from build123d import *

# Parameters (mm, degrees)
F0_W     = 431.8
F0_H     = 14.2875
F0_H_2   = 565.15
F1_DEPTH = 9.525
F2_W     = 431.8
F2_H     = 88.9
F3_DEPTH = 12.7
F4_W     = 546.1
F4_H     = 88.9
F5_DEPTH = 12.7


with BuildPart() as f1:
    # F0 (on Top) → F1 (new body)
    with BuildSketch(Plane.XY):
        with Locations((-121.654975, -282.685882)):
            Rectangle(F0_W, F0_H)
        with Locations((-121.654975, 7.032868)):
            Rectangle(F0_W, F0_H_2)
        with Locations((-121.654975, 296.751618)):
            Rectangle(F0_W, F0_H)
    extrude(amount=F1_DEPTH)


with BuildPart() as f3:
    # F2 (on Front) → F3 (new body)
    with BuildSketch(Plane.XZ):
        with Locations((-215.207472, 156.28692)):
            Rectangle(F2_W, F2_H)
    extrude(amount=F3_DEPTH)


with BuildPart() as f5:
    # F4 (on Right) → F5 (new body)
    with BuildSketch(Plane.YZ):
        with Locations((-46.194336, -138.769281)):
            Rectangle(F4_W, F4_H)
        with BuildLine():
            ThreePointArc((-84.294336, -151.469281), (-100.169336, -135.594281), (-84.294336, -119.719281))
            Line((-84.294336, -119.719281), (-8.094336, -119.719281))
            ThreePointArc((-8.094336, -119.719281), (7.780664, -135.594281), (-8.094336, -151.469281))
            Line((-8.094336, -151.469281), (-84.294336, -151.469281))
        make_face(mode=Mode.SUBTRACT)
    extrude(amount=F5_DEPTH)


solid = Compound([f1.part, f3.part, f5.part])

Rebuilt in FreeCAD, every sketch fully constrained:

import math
import FreeCAD as App
import Part
import Sketcher

V = App.Vector
Q = App.Units.Quantity

doc = App.newDocument("Part")
body = doc.addObject("PartDesign::Body", "Body")

sketch1 = doc.addObject("Sketcher::SketchObject", "Sketch")
body.addObject(sketch1)
sketch1.AttachmentSupport = (doc.XY_Plane, [""])
sketch1.MapMode = "FlatFace"
sketch1.addGeometry(Part.LineSegment(V(-338, -290, 0), V(94, -290, 0)), False)
sketch1.addGeometry(Part.LineSegment(V(94, -290, 0), V(94, 304, 0)), False)
sketch1.addGeometry(Part.LineSegment(V(94, 304, 0), V(-338, 304, 0)), False)
sketch1.addGeometry(Part.LineSegment(V(-338, 304, 0), V(-338, -290, 0)), False)
sketch1.addConstraint(Sketcher.Constraint("Coincident", 0, 2, 1, 1))
sketch1.addConstraint(Sketcher.Constraint("Coincident", 1, 2, 2, 1))
sketch1.addConstraint(Sketcher.Constraint("Coincident", 2, 2, 3, 1))
sketch1.addConstraint(Sketcher.Constraint("Coincident", 3, 2, 0, 1))
sketch1.addConstraint(Sketcher.Constraint("Horizontal", 0))
sketch1.addConstraint(Sketcher.Constraint("Vertical", 1))
sketch1.addConstraint(Sketcher.Constraint("Horizontal", 2))
sketch1.addConstraint(Sketcher.Constraint("Vertical", 3))
sketch1.addConstraint(Sketcher.Constraint("DistanceX", 0, 1, 0, 2, Q("17 in")))
sketch1.addConstraint(Sketcher.Constraint("DistanceY", 1, 1, 1, 2, Q("23.375 in")))
sketch1.addConstraint(Sketcher.Constraint("DistanceY", 0, 2, -1, 1, 289.829632))
sketch1.addConstraint(Sketcher.Constraint("DistanceX", -1, 1, 0, 2, 94.245025))
pad1 = doc.addObject("PartDesign::Pad", "Pad")
body.addObject(pad1)
pad1.Profile = sketch1
pad1.Length = Q("0.375 in")
body2 = doc.addObject("PartDesign::Body", "Body001")

sketch2 = doc.addObject("Sketcher::SketchObject", "Sketch001")
body2.addObject(sketch2)
sketch2.AttachmentSupport = (doc.getObject("XZ_Plane001"), [""])
sketch2.MapMode = "FlatFace"
sketch2.addGeometry(Part.LineSegment(V(-431, 201, 0), V(-431, 112, 0)), False)
sketch2.addGeometry(Part.LineSegment(V(-431, 112, 0), V(1, 112, 0)), False)
sketch2.addGeometry(Part.LineSegment(V(1, 112, 0), V(1, 201, 0)), False)
sketch2.addGeometry(Part.LineSegment(V(1, 201, 0), V(-431, 201, 0)), False)
sketch2.addConstraint(Sketcher.Constraint("Coincident", 0, 2, 1, 1))
sketch2.addConstraint(Sketcher.Constraint("Coincident", 1, 2, 2, 1))
sketch2.addConstraint(Sketcher.Constraint("Coincident", 2, 2, 3, 1))
sketch2.addConstraint(Sketcher.Constraint("Coincident", 3, 2, 0, 1))
sketch2.addConstraint(Sketcher.Constraint("Vertical", 0))
sketch2.addConstraint(Sketcher.Constraint("Horizontal", 1))
sketch2.addConstraint(Sketcher.Constraint("Vertical", 2))
sketch2.addConstraint(Sketcher.Constraint("Horizontal", 3))
sketch2.addConstraint(Sketcher.Constraint("DistanceX", 1, 1, 1, 2, Q("17 in")))
sketch2.addConstraint(Sketcher.Constraint("DistanceY", 0, 2, 0, 1, Q("3.5 in")))
sketch2.addConstraint(Sketcher.Constraint("DistanceX", 0, 2, -1, 1, 431.107472))
sketch2.addConstraint(Sketcher.Constraint("DistanceY", -1, 1, 0, 2, 111.83692))
pad2 = doc.addObject("PartDesign::Pad", "Pad001")
body2.addObject(pad2)
pad2.Profile = sketch2
pad2.Length = Q("0.5 in")
body3 = doc.addObject("PartDesign::Body", "Body002")

sketch3 = doc.addObject("Sketcher::SketchObject", "Sketch002")
body3.addObject(sketch3)
sketch3.AttachmentSupport = (doc.getObject("YZ_Plane002"), [""])
sketch3.MapMode = "FlatFace"
sketch3.addGeometry(Part.LineSegment(V(-319, -94, 0), V(-319, -183, 0)), False)
sketch3.addGeometry(Part.LineSegment(V(-319, -183, 0), V(227, -183, 0)), False)
sketch3.addGeometry(Part.LineSegment(V(227, -183, 0), V(227, -94, 0)), False)
sketch3.addGeometry(Part.LineSegment(V(227, -94, 0), V(-319, -94, 0)), False)
sketch3.addGeometry(Part.LineSegment(V(-8, -151, 0), V(-84, -151, 0)), False)
sketch3.addGeometry(Part.ArcOfCircle(Part.Circle(V(-84, -136, 0), V(0, 0, 1), 16), math.radians(90), math.radians(270)), False)
sketch3.addGeometry(Part.LineSegment(V(-84, -120, 0), V(-8, -120, 0)), False)
sketch3.addGeometry(Part.ArcOfCircle(Part.Circle(V(-8, -136, 0), V(0, 0, 1), 16), math.radians(-90), math.radians(90)), False)
sketch3.addConstraint(Sketcher.Constraint("Coincident", 0, 2, 1, 1))
sketch3.addConstraint(Sketcher.Constraint("Coincident", 1, 2, 2, 1))
sketch3.addConstraint(Sketcher.Constraint("Coincident", 2, 2, 3, 1))
sketch3.addConstraint(Sketcher.Constraint("Coincident", 3, 2, 0, 1))
sketch3.addConstraint(Sketcher.Constraint("Tangent", 4, 2, 5, 2))
sketch3.addConstraint(Sketcher.Constraint("Tangent", 5, 1, 6, 1))
sketch3.addConstraint(Sketcher.Constraint("Tangent", 6, 2, 7, 2))
sketch3.addConstraint(Sketcher.Constraint("Tangent", 7, 1, 4, 1))
sketch3.addConstraint(Sketcher.Constraint("Vertical", 0))
sketch3.addConstraint(Sketcher.Constraint("Horizontal", 1))
sketch3.addConstraint(Sketcher.Constraint("Vertical", 2))
sketch3.addConstraint(Sketcher.Constraint("Horizontal", 3))
sketch3.addConstraint(Sketcher.Constraint("Horizontal", 4))
sketch3.addConstraint(Sketcher.Constraint("Horizontal", 6))
sketch3.addConstraint(Sketcher.Constraint("DistanceX", 4, 2, 4, 1, Q("3 in")))
sketch3.addConstraint(Sketcher.Constraint("DistanceX", 1, 1, 1, 2, Q("21.5 in")))
sketch3.addConstraint(Sketcher.Constraint("DistanceY", 0, 2, 0, 1, Q("3.5 in")))
sketch3.addConstraint(Sketcher.Constraint("Radius", 5, Q("0.625 in")))
sketch3.addConstraint(Sketcher.Constraint("DistanceY", 5, 1, 3, 2, Q("1 in")))
sketch3.addConstraint(Sketcher.Constraint("DistanceX", 0, 2, 5, 3, Q("9.25 in")))
sketch3.addConstraint(Sketcher.Constraint("DistanceY", 5, 3, -1, 1, 135.594281))
sketch3.addConstraint(Sketcher.Constraint("DistanceX", 5, 3, -1, 1, 84.294336))
pad3 = doc.addObject("PartDesign::Pad", "Pad002")
body3.addObject(pad3)
pad3.Profile = sketch3
pad3.Length = Q("0.5 in")

doc.recompute()
